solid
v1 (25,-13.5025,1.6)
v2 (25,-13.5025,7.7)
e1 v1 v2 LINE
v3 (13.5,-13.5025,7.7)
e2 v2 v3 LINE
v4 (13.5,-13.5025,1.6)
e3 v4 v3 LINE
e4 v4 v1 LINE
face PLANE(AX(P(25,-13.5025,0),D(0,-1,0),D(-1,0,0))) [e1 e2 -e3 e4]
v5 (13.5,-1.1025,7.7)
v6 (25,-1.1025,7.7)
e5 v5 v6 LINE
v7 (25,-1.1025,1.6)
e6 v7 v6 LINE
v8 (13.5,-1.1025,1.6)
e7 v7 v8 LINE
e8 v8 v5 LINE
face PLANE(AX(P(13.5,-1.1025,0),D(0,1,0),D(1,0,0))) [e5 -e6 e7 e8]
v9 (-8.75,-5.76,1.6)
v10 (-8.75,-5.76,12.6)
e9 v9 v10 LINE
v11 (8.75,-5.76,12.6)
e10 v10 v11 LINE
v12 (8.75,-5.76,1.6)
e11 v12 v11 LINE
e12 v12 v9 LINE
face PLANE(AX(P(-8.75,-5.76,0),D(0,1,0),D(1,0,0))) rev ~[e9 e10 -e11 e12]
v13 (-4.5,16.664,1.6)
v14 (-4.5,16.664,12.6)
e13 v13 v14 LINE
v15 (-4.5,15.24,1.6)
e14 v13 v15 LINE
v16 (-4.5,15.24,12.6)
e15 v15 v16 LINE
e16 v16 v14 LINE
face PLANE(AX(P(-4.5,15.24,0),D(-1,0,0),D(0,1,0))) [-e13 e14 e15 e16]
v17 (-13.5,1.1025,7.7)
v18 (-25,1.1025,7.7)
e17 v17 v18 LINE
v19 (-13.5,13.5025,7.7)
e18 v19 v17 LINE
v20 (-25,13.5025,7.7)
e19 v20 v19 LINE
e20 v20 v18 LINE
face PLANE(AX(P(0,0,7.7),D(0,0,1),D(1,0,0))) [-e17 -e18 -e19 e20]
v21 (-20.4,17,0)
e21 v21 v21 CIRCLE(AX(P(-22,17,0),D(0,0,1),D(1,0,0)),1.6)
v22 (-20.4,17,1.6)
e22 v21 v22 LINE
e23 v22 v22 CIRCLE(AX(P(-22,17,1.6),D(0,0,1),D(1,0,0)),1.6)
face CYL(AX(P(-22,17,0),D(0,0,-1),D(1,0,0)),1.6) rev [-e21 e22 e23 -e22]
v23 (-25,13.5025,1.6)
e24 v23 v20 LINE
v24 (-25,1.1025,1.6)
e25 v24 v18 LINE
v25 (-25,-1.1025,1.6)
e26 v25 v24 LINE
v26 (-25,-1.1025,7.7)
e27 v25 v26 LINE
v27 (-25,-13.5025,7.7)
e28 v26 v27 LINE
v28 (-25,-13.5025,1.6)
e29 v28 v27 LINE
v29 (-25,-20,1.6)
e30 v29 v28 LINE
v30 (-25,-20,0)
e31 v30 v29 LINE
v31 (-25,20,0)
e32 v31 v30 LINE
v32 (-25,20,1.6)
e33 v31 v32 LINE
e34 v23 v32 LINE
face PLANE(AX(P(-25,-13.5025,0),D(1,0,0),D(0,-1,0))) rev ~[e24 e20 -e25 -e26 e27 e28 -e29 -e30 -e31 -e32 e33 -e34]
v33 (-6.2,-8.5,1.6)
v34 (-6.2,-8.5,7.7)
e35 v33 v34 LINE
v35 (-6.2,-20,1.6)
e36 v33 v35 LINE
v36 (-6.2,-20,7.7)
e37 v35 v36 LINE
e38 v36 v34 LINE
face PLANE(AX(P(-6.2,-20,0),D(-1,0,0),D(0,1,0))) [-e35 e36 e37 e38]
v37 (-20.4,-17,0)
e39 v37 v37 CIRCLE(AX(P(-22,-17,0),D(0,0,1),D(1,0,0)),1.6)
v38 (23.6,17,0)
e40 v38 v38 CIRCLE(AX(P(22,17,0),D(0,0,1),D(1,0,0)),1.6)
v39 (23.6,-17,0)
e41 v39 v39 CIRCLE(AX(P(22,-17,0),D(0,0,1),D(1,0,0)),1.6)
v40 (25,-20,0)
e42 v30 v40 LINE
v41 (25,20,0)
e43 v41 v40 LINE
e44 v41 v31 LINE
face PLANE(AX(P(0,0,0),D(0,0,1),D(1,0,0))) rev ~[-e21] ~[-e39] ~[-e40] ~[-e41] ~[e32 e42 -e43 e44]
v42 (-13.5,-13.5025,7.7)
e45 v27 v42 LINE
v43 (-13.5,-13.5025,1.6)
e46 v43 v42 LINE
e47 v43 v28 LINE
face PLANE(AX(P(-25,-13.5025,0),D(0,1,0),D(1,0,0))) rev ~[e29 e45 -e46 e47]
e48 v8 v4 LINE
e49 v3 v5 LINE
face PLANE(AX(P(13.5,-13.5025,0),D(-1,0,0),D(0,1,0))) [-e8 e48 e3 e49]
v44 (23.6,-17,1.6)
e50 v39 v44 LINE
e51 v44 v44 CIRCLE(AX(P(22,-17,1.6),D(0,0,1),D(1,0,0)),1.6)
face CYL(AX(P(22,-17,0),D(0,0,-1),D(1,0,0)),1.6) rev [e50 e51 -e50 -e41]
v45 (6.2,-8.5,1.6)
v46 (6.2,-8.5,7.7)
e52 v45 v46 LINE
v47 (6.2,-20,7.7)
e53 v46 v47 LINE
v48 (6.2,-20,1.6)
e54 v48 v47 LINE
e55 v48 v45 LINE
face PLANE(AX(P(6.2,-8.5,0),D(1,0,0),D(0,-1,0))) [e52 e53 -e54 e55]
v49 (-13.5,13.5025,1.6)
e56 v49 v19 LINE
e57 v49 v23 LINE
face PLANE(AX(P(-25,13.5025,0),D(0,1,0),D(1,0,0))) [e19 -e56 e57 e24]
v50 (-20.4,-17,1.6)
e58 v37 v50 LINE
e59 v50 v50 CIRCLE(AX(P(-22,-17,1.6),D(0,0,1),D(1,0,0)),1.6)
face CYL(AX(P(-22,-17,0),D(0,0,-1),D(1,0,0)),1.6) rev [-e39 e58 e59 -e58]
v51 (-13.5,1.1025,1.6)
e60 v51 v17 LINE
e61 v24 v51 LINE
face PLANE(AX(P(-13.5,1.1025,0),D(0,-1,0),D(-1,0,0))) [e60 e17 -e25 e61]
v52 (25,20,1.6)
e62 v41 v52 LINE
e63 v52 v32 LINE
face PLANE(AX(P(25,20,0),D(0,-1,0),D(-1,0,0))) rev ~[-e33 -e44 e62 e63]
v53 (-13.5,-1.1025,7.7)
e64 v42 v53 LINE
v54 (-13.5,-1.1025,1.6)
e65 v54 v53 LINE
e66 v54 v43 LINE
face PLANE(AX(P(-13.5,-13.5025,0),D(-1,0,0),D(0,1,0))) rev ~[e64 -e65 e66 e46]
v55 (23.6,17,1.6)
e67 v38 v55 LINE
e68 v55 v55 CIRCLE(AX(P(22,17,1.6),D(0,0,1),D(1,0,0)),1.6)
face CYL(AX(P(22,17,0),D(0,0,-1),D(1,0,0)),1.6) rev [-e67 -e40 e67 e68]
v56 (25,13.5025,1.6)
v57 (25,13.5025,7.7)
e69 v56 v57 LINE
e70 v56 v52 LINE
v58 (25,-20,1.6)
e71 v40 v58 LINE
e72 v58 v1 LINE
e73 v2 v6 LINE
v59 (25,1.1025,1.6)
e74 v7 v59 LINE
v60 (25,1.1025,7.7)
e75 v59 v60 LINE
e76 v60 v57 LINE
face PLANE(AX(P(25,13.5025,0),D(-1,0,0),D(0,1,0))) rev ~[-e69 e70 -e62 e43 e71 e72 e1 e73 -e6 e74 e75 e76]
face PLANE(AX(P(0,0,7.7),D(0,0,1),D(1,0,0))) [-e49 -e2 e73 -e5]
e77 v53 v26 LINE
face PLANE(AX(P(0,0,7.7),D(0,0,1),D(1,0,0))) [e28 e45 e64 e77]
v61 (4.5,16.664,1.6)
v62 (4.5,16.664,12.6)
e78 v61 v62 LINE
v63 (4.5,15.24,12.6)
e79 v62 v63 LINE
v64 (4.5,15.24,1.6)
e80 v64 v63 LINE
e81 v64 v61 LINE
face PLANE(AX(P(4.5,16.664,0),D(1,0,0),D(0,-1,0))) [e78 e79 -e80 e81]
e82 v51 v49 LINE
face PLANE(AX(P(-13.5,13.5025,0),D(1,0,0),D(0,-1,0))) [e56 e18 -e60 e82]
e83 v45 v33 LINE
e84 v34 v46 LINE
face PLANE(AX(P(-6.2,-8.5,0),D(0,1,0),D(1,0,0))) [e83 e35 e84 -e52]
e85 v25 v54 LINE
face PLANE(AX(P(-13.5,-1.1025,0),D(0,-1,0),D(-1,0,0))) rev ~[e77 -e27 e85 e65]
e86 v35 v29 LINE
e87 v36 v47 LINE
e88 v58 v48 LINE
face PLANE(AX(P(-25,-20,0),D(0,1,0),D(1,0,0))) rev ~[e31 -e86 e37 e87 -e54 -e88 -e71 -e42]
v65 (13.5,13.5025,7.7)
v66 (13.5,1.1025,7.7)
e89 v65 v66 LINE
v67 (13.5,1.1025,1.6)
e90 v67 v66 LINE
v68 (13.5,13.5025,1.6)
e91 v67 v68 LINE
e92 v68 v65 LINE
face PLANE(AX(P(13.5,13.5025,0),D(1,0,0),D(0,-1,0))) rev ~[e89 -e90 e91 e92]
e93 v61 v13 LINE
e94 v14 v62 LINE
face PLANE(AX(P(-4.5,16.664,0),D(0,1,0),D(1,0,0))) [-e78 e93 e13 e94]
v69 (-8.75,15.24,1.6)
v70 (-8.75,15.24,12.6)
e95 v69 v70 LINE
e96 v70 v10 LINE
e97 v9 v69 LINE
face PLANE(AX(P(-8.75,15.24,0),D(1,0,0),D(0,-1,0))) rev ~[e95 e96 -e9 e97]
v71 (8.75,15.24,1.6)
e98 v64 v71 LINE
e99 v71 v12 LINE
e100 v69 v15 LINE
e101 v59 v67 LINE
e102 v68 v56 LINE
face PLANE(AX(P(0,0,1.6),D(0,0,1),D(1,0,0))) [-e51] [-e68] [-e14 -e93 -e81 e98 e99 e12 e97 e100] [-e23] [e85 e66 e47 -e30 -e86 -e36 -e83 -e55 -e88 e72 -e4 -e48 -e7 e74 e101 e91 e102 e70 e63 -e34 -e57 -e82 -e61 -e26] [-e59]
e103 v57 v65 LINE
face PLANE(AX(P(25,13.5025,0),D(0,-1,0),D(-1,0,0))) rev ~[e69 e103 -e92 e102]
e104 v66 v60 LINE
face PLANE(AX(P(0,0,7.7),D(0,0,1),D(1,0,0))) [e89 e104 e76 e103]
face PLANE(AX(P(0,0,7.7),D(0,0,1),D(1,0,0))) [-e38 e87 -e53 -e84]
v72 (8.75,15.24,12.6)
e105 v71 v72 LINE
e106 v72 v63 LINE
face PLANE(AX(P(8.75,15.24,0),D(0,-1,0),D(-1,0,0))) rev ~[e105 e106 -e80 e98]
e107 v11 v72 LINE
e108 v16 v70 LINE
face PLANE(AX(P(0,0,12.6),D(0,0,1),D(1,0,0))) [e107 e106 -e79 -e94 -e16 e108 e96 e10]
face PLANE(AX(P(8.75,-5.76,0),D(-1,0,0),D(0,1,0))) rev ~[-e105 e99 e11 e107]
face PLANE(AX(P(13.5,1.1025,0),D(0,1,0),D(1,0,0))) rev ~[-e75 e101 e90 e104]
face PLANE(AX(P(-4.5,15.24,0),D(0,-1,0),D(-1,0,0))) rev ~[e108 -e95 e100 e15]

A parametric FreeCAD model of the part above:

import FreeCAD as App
import Part
import Sketcher
from FreeCAD import Vector


def add_polygon(sketch, points):
    """Adds a closed chain of lines whose ends are joined by coincident constraints."""
    first, n = sketch.GeometryCount, len(points)
    for a, b in zip(points, points[1:] + points[:1]):
        sketch.addGeometry(Part.LineSegment(App.Vector(*a, 0), App.Vector(*b, 0)), False)
    for i in range(n):
        sketch.addConstraint(Sketcher.Constraint("Coincident", first + i, 2, first + (i + 1) % n, 1))

doc = App.newDocument("Part")
body = doc.addObject("PartDesign::Body", "Body")

# Sketch on XY plane
sketch1 = body.newObject("Sketcher::SketchObject", "Sketch")
sketch1.AttachmentSupport = (doc.getObject("XY_Plane"), [""])
sketch1.MapMode = "FlatFace"
add_polygon(sketch1, [(-25, -20), (25, -20), (25, 20), (-25, 20)])  # lines 0-3
sketch1.addGeometry(Part.Circle(Vector(-22, -17, 0), Vector(0, 0, 1), 1.6), False)  # 4
sketch1.addGeometry(Part.Circle(Vector(22, -17, 0), Vector(0, 0, 1), 1.6), False)  # 5
sketch1.addGeometry(Part.Circle(Vector(-22, 17, 0), Vector(0, 0, 1), 1.6), False)  # 6
sketch1.addGeometry(Part.Circle(Vector(22, 17, 0), Vector(0, 0, 1), 1.6), False)  # 7
sketch1.addConstraint(Sketcher.Constraint("Horizontal", 0))
sketch1.addConstraint(Sketcher.Constraint("Vertical", 1))
sketch1.addConstraint(Sketcher.Constraint("Horizontal", 2))
sketch1.addConstraint(Sketcher.Constraint("Vertical", 3))
sketch1.addConstraint(Sketcher.Constraint("Equal", 4, 5))
sketch1.addConstraint(Sketcher.Constraint("Equal", 5, 6))
sketch1.addConstraint(Sketcher.Constraint("Equal", 6, 7))
sketch1.addConstraint(Sketcher.Constraint("Symmetric", 5, 3, 6, 3, -1, 1))
sketch1.addConstraint(Sketcher.Constraint("Symmetric", 4, 3, 7, 3, -1, 1))
sketch1.addConstraint(Sketcher.Constraint("Symmetric", 0, 2, 2, 2, -1, 1))
sketch1.addConstraint(Sketcher.Constraint("Symmetric", 4, 3, 5, 3, -2))
sketch1.addConstraint(Sketcher.Constraint("Diameter", 4, 3.2))
sketch1.addConstraint(Sketcher.Constraint("DistanceX", 0, 1, 0, 2, 50.0))
sketch1.addConstraint(Sketcher.Constraint("DistanceY", 1, 1, 1, 2, 40.0))
sketch1.addConstraint(Sketcher.Constraint("DistanceX", 4, 3, 5, 3, 44.0))
sketch1.addConstraint(Sketcher.Constraint("DistanceY", 4, 3, 6, 3, 34.0))
pad1 = body.newObject("PartDesign::Pad", "Pad")
pad1.Profile = sketch1
pad1.Length = 1.6

# Sketch on XY plane
sketch2 = body.newObject("Sketcher::SketchObject", "Sketch001")
sketch2.AttachmentSupport = (doc.getObject("XY_Plane"), [""])
sketch2.MapMode = "FlatFace"
add_polygon(sketch2, [(-6, -8), (-6, -20), (6, -20), (6, -8)])  # lines 0-3
add_polygon(sketch2, [(-25, -1), (-25, -14), (-14, -14), (-14, -1)])  # lines 4-7
add_polygon(sketch2, [(-25, 14), (-25, 1), (-14, 1), (-14, 14)])  # lines 8-11
add_polygon(sketch2, [(14, -14), (25, -14), (25, -1), (14, -1)])  # lines 12-15
add_polygon(sketch2, [(14, 1), (25, 1), (25, 14), (14, 14)])  # lines 16-19
sketch2.addConstraint(Sketcher.Constraint("Vertical", 0))
sketch2.addConstraint(Sketcher.Constraint("Horizontal", 1))
sketch2.addConstraint(Sketcher.Constraint("Vertical", 2))
sketch2.addConstraint(Sketcher.Constraint("Horizontal", 3))
sketch2.addConstraint(Sketcher.Constraint("Vertical", 4))
sketch2.addConstraint(Sketcher.Constraint("Horizontal", 5))
sketch2.addConstraint(Sketcher.Constraint("Vertical", 6))
sketch2.addConstraint(Sketcher.Constraint("Horizontal", 7))
sketch2.addConstraint(Sketcher.Constraint("Vertical", 8))
sketch2.addConstraint(Sketcher.Constraint("Horizontal", 9))
sketch2.addConstraint(Sketcher.Constraint("Vertical", 10))
sketch2.addConstraint(Sketcher.Constraint("Horizontal", 11))
sketch2.addConstraint(Sketcher.Constraint("Horizontal", 12))
sketch2.addConstraint(Sketcher.Constraint("Vertical", 13))
sketch2.addConstraint(Sketcher.Constraint("Horizontal", 14))
sketch2.addConstraint(Sketcher.Constraint("Vertical", 15))
sketch2.addConstraint(Sketcher.Constraint("Horizontal", 16))
sketch2.addConstraint(Sketcher.Constraint("Vertical", 17))
sketch2.addConstraint(Sketcher.Constraint("Horizontal", 18))
sketch2.addConstraint(Sketcher.Constraint("Vertical", 19))
sketch2.addConstraint(Sketcher.Constraint("Symmetric", 11, 2, 12, 2, -1, 1))
sketch2.addConstraint(Sketcher.Constraint("Symmetric", 9, 2, 14, 2, -1, 1))
sketch2.addConstraint(Sketcher.Constraint("Symmetric", 7, 2, 16, 2, -1, 1))
sketch2.addConstraint(Sketcher.Constraint("Symmetric", 5, 2, 18, 2, -1, 1))
sketch2.addConstraint(Sketcher.Constraint("Symmetric", 4, 2, 12, 2, -2))
sketch2.addConstraint(Sketcher.Constraint("Symmetric", 6, 2, 14, 2, -2))
sketch2.addConstraint(Sketcher.Constraint("Equal", 18, 0))
sketch2.addConstraint(Sketcher.Constraint("Equal", 3, 4))
sketch2.addConstraint(Sketcher.Constraint("DistanceX", 1, 1, 1, 2, 12.4))
sketch2.addConstraint(Sketcher.Constraint("DistanceX", 5, 1, 5, 2, 11.5))
sketch2.addConstraint(Sketcher.Constraint("DistanceY", 0, 2, -1, 1, 20.0))
sketch2.addConstraint(Sketcher.Constraint("DistanceX", 4, 2, -1, 1, 25.0))
sketch2.addConstraint(Sketcher.Constraint("DistanceX", 0, 2, -1, 1, 6.2))
sketch2.addConstraint(Sketcher.Constraint("DistanceY", 7, 2, 8, 2, 2.205))
pad2 = body.newObject("PartDesign::Pad", "Pad001")
pad2.Profile = sketch2
pad2.Length = 7.7

# Sketch on XY plane
sketch3 = body.newObject("Sketcher::SketchObject", "Sketch002")
sketch3.AttachmentSupport = (doc.getObject("XY_Plane"), [""])
sketch3.MapMode = "FlatFace"
add_polygon(sketch3, [(-8.8, 15.2), (-8.8, -5.8), (8.8, -5.8), (8.8, 15.2), (4.5, 15.2), (4.5, 16.7), (-4.5, 16.7), (-4.5, 15.2)])  # lines 0-7
sketch3.addConstraint(Sketcher.Constraint("Vertical", 0))
sketch3.addConstraint(Sketcher.Constraint("Horizontal", 1))
sketch3.addConstraint(Sketcher.Constraint("Vertical", 2))
sketch3.addConstraint(Sketcher.Constraint("Horizontal", 3))
sketch3.addConstraint(Sketcher.Constraint("Vertical", 4))
sketch3.addConstraint(Sketcher.Constraint("Horizontal", 5))
sketch3.addConstraint(Sketcher.Constraint("Vertical", 6))
sketch3.addConstraint(Sketcher.Constraint("Horizontal", 7))
sketch3.addConstraint(Sketcher.Constraint("Symmetric", 3, 2, 6, 2, -2))
sketch3.addConstraint(Sketcher.Constraint("Equal", 3, 7))
sketch3.addConstraint(Sketcher.Constraint("DistanceX", 5, 2, 5, 1, 9.0))
sketch3.addConstraint(Sketcher.Constraint("DistanceY", 0, 2, 0, 1, 21.0))
sketch3.addConstraint(Sketcher.Constraint("DistanceX", 1, 1, 1, 2, 17.5))
sketch3.addConstraint(Sketcher.Constraint("DistanceY", 4, 1, 4, 2, 1.424))
sketch3.addConstraint(Sketcher.Constraint("DistanceY", 0, 2, -1, 1, 5.76))
pad3 = body.newObject("PartDesign::Pad", "Pad002")
pad3.Profile = sketch3
pad3.Length = 12.6

doc.recompute()
